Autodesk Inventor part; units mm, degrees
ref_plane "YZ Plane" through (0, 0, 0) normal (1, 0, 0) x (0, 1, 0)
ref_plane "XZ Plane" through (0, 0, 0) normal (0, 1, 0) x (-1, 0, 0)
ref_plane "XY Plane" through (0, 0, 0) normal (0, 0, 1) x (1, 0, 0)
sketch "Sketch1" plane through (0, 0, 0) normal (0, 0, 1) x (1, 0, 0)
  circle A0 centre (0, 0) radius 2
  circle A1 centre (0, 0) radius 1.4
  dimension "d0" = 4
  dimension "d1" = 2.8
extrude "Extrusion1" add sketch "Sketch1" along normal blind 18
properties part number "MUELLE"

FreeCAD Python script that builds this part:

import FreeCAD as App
import Part
import Sketcher

V = App.Vector

doc = App.newDocument("Part")
body = doc.addObject("PartDesign::Body", "Body")

sketch1 = doc.addObject("Sketcher::SketchObject", "Sketch")
body.addObject(sketch1)
sketch1.AttachmentSupport = (doc.XY_Plane, [""])
sketch1.MapMode = "FlatFace"
sketch1.addGeometry(Part.Circle(V(0, 0, 0), V(0, 0, 1), 2), False)
sketch1.addGeometry(Part.Circle(V(0, 0, 0), V(0, 0, 1), 1.4), False)
sketch1.addConstraint(Sketcher.Constraint("Coincident", 0, 3, -1, 1))
sketch1.addConstraint(Sketcher.Constraint("Coincident", 1, 3, -1, 1))
sketch1.addConstraint(Sketcher.Constraint("Diameter", 0, 4.0))
sketch1.addConstraint(Sketcher.Constraint("Diameter", 1, 2.8))
pad1 = doc.addObject("PartDesign::Pad", "Pad")
body.addObject(pad1)
pad1.Profile = sketch1
pad1.Length = 18

doc.recompute()
